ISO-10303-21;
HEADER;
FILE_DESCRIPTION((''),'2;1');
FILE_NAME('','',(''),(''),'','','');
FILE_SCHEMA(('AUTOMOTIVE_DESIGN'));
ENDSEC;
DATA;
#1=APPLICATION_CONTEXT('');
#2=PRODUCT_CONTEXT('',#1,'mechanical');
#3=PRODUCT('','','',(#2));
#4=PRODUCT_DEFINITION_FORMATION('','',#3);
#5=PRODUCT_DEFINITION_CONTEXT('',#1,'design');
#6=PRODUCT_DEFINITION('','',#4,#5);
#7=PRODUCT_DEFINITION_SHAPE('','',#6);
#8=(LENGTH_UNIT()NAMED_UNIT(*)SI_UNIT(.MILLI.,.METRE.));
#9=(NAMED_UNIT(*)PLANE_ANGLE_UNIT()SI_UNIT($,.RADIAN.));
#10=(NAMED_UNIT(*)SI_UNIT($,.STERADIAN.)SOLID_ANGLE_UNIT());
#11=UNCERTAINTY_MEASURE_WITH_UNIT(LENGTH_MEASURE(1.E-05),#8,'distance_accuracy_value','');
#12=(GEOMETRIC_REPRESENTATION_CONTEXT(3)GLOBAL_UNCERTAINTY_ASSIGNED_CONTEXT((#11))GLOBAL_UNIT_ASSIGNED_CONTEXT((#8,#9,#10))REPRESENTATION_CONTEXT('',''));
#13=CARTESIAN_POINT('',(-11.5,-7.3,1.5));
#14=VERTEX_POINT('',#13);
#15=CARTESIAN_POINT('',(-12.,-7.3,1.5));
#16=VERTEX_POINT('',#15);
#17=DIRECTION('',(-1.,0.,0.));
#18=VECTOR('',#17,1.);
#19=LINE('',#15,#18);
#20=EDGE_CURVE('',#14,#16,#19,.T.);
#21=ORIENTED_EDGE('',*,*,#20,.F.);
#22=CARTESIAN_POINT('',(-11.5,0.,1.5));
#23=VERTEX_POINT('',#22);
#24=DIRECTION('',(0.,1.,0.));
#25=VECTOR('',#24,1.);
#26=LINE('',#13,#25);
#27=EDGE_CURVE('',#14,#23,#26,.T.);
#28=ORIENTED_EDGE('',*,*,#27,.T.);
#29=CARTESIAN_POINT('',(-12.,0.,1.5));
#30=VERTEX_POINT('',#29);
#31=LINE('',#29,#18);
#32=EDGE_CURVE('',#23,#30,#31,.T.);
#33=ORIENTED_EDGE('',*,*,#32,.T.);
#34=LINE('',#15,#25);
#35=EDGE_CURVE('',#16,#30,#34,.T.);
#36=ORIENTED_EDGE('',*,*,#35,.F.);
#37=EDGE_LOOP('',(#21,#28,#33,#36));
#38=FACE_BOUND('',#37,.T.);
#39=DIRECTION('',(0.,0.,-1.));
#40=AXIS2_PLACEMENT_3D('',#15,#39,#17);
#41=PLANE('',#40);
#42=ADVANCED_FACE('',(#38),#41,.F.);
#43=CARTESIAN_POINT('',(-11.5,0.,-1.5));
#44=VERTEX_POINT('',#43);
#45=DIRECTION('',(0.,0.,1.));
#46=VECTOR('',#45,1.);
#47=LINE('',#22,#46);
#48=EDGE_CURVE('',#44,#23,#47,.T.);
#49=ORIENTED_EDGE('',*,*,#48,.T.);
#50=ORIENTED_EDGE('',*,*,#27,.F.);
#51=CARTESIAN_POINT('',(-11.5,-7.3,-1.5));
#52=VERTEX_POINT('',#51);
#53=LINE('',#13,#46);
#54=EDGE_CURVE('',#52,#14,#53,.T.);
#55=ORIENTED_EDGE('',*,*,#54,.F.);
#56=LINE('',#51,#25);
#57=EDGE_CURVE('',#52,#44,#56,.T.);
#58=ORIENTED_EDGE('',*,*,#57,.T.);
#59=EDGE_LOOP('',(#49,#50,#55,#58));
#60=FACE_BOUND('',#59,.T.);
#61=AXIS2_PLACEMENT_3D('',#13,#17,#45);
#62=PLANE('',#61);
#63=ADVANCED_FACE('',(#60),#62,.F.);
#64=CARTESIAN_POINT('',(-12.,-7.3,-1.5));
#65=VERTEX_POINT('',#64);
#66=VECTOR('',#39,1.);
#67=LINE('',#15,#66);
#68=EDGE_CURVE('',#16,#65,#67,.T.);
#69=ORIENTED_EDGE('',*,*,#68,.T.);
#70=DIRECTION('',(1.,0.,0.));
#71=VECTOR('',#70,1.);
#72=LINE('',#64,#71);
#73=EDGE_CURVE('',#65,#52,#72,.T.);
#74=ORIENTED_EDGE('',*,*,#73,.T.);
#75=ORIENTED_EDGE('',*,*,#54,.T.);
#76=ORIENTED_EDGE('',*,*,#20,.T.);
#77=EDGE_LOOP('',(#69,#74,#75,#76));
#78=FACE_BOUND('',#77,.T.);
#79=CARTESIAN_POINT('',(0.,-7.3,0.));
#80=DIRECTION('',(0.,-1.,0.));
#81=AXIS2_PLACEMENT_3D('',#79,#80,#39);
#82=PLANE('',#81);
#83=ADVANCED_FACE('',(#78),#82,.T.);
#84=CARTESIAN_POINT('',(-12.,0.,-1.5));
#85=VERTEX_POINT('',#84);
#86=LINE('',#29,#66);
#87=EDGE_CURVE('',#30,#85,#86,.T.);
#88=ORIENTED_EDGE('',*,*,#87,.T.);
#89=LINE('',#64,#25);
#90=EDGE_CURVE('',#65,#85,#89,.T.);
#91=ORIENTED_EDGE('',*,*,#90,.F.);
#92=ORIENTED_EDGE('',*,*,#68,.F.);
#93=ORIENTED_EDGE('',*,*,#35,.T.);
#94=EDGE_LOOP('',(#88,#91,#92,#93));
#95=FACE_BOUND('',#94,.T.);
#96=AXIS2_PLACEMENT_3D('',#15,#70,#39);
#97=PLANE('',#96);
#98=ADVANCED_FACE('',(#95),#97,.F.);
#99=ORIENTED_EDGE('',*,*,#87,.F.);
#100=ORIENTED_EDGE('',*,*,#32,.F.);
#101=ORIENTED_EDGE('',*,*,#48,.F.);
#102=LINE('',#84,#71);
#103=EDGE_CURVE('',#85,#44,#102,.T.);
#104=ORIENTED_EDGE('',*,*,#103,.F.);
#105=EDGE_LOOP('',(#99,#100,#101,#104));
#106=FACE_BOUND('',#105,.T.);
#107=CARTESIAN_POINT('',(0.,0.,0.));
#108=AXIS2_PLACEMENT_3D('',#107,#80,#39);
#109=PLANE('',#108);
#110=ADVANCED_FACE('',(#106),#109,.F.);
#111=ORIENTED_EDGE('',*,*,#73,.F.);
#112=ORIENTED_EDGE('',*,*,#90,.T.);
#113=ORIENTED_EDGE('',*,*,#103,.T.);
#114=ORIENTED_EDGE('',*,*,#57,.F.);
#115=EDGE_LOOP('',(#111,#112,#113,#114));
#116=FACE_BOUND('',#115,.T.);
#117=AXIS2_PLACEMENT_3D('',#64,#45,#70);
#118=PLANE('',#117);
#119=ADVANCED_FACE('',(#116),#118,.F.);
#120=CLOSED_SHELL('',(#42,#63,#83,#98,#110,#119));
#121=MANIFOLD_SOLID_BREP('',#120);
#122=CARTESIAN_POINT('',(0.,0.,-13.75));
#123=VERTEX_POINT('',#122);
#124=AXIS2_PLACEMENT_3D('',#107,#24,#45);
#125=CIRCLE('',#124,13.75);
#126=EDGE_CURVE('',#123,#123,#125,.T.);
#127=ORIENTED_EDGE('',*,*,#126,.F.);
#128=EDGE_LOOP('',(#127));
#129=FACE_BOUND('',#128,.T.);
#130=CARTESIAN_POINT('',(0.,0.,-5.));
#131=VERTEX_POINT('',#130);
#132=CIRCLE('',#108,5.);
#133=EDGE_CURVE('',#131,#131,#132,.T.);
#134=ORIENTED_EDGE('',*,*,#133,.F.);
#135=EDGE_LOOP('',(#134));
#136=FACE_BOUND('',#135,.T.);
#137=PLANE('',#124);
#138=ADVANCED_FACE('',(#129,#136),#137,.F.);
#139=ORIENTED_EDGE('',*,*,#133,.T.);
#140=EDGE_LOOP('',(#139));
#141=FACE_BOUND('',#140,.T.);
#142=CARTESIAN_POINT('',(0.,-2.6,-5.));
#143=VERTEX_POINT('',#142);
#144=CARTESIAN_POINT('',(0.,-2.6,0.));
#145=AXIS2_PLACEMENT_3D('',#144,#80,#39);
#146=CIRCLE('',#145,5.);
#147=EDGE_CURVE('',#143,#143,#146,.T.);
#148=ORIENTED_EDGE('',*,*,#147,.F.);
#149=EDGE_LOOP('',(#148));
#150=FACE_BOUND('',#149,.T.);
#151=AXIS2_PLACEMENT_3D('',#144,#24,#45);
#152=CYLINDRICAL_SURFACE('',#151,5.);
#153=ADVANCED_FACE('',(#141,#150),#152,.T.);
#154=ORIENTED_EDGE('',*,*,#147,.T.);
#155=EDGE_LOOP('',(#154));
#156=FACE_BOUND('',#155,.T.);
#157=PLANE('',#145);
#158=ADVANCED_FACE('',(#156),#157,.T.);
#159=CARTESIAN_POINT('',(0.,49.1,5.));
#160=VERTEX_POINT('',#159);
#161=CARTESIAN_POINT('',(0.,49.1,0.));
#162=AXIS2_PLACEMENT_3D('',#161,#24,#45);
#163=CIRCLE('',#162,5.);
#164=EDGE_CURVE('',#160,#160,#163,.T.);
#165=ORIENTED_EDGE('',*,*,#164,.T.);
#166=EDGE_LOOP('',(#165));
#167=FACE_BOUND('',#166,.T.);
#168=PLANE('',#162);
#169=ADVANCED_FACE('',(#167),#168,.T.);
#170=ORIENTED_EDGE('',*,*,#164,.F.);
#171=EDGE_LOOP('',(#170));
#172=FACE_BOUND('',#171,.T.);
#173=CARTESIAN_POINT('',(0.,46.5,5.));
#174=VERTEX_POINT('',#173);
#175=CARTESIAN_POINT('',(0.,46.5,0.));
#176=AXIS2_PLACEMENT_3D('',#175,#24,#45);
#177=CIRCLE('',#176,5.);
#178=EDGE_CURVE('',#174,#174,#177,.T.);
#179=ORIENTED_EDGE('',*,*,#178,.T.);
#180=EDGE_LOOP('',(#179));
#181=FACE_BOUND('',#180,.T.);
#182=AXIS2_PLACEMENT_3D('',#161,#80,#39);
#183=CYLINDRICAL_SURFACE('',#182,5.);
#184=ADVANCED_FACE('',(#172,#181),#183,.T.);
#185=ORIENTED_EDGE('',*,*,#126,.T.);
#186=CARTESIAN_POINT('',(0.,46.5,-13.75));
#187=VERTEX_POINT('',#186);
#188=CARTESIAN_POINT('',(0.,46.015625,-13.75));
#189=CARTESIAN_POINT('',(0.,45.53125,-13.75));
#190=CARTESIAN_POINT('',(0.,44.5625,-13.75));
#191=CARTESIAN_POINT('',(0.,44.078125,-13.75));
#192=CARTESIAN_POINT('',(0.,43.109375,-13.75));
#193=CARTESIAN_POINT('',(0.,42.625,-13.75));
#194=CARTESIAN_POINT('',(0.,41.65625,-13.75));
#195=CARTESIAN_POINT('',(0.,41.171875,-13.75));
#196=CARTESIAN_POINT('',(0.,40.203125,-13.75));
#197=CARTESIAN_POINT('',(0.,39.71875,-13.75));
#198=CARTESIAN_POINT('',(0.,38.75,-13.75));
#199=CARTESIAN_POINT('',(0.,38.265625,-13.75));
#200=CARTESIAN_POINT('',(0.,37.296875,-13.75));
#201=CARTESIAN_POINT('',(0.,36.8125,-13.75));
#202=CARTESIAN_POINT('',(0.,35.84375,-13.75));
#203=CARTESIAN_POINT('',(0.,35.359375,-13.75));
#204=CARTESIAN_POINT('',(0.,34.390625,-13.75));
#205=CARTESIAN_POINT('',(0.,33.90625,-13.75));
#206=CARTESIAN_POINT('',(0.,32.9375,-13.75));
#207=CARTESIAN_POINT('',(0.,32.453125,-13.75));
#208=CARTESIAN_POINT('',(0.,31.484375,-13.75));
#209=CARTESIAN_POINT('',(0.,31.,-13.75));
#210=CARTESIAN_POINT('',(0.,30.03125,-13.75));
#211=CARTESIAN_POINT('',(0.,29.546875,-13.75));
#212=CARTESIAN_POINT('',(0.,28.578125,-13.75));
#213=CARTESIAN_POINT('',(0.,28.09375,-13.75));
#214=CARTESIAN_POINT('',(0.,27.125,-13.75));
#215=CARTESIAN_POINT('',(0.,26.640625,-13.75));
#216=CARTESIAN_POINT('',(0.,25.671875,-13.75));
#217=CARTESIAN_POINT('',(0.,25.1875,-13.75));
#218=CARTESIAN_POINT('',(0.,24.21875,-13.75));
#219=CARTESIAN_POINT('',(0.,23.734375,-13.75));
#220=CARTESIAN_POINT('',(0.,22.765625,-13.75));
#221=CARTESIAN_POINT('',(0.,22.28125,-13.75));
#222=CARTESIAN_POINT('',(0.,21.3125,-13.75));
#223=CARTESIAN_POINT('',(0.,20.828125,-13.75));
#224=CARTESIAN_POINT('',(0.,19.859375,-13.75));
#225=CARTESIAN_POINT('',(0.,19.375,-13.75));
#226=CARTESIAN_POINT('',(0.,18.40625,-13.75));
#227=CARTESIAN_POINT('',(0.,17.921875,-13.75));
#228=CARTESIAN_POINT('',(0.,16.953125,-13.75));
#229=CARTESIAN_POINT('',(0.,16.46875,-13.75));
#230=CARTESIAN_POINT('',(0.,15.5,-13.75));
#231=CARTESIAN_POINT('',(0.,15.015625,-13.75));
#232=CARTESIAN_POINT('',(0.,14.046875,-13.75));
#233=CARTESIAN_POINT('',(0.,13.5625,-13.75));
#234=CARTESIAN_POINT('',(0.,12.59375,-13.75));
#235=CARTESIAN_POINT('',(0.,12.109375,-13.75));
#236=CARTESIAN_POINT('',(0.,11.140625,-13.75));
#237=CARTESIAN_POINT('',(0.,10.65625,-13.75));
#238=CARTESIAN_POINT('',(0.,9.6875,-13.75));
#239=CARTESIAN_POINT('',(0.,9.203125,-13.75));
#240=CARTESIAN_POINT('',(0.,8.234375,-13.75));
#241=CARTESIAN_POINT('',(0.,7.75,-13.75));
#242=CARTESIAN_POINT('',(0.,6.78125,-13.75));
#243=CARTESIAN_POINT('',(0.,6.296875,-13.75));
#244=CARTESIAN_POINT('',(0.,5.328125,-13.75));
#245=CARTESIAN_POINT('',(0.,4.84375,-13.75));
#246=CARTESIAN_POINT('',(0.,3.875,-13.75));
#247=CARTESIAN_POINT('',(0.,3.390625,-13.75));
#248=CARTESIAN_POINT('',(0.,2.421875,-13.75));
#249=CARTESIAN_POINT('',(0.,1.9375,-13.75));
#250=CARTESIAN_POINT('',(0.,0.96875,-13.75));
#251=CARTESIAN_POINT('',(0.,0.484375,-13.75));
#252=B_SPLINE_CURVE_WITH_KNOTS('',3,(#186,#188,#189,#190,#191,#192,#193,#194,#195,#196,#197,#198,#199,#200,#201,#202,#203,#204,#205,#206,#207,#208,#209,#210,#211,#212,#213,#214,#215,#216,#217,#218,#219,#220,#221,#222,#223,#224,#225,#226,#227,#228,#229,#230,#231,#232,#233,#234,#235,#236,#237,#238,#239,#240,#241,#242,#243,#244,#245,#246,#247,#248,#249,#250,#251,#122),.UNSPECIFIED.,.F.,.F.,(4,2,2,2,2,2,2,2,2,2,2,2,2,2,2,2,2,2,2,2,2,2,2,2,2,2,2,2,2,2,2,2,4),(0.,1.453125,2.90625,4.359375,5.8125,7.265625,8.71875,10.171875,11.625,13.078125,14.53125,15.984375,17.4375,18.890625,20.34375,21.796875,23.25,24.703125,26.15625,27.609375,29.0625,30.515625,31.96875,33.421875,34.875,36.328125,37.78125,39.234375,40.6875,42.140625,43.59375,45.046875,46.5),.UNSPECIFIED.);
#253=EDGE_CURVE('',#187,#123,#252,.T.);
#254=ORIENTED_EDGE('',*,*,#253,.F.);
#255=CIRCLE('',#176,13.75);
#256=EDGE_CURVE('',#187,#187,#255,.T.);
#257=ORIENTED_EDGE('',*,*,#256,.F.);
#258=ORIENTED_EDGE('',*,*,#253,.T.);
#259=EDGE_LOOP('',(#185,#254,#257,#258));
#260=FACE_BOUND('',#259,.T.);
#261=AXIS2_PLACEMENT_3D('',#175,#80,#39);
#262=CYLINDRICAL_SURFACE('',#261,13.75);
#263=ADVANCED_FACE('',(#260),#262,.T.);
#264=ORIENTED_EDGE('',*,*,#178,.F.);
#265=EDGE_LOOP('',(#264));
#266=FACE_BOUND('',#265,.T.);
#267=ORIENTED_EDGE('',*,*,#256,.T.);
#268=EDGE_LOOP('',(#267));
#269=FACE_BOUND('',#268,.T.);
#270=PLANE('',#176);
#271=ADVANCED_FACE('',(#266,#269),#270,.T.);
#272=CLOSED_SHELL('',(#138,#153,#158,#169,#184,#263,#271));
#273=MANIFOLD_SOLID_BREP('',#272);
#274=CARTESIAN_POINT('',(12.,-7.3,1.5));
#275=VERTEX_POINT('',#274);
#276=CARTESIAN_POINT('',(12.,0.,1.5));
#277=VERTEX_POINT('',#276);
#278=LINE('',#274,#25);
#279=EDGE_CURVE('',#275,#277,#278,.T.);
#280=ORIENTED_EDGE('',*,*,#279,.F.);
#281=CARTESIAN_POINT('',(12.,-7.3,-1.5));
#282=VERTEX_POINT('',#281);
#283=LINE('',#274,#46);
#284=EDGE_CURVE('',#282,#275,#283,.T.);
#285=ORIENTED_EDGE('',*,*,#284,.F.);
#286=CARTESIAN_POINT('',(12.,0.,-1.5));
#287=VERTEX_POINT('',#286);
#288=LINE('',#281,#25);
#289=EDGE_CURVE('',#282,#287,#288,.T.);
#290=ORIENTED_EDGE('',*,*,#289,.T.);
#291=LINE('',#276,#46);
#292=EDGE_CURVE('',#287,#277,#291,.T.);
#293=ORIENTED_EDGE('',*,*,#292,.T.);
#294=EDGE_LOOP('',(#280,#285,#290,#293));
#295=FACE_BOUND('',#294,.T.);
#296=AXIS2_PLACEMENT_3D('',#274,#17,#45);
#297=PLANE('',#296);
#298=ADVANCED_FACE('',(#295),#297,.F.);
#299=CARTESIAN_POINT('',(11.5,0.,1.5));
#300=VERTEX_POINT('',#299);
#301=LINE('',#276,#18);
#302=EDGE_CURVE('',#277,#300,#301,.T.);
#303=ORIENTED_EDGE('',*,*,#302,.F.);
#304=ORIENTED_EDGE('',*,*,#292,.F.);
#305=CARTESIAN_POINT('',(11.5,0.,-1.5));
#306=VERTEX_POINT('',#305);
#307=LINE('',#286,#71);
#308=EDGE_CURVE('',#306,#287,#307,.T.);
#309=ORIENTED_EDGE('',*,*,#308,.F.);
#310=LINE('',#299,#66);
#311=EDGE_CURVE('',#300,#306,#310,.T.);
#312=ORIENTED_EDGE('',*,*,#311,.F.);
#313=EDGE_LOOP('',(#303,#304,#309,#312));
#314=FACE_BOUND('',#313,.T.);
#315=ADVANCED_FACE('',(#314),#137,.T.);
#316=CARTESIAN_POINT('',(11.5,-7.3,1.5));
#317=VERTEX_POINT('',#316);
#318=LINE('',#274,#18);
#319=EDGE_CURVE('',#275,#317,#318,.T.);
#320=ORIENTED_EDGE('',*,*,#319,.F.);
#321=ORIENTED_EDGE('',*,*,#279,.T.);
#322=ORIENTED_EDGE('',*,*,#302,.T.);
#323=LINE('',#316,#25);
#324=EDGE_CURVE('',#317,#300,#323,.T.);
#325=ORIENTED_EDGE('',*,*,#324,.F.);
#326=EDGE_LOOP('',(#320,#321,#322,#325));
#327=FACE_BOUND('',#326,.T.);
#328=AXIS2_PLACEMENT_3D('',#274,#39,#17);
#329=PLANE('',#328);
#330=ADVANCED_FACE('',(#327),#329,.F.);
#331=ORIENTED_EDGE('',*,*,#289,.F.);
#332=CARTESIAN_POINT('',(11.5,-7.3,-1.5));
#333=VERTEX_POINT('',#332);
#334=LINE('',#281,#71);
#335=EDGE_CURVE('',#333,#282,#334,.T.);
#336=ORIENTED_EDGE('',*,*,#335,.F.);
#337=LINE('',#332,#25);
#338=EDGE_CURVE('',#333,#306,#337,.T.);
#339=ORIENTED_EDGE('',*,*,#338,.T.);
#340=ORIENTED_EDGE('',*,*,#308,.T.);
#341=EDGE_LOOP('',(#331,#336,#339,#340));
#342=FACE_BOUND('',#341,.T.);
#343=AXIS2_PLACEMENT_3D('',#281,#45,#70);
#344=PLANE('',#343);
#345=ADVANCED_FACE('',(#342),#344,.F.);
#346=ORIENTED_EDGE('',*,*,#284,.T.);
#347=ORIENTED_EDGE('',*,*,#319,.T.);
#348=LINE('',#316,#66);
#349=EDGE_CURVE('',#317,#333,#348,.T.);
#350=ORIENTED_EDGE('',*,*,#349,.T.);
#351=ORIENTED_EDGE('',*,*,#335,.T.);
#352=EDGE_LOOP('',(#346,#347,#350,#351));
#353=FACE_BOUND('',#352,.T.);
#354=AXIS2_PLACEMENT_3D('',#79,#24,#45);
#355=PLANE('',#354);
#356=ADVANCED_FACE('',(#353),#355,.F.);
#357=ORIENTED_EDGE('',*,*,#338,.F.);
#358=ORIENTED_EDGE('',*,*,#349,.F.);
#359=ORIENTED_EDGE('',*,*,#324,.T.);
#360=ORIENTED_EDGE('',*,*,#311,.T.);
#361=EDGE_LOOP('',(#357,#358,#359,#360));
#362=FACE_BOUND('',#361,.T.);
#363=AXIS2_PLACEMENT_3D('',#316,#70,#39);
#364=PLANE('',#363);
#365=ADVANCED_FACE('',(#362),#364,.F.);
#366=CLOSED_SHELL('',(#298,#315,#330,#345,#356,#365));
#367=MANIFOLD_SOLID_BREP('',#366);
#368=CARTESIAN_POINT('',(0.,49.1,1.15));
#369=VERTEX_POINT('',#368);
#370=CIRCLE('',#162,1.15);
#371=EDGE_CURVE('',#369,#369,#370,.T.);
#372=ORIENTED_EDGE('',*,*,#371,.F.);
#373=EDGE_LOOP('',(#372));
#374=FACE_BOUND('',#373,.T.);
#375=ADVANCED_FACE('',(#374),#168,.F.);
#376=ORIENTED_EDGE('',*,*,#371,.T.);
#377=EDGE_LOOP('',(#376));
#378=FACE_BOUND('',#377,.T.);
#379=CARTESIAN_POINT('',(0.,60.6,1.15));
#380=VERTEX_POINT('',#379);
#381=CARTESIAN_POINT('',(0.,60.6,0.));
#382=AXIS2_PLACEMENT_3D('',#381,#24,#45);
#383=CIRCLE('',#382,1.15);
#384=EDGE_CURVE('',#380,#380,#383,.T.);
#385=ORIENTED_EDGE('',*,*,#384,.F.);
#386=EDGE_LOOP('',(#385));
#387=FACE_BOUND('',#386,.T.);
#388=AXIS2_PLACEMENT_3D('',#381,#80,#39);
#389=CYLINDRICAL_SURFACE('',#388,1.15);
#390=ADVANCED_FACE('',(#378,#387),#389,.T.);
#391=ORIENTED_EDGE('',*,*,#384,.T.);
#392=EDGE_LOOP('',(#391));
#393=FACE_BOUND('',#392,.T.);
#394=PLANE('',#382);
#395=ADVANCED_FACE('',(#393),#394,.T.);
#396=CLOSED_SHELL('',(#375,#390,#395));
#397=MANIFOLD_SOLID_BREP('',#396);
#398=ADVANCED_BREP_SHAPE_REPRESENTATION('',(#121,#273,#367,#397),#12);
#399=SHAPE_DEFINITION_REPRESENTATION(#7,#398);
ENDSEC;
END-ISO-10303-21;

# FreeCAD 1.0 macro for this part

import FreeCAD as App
import Part
import Sketcher


def add_polygon(sketch, points):
    """Adds a closed chain of lines whose ends are joined by coincident constraints."""
    first, n = sketch.GeometryCount, len(points)
    for a, b in zip(points, points[1:] + points[:1]):
        sketch.addGeometry(Part.LineSegment(App.Vector(*a, 0), App.Vector(*b, 0)), False)
    for i in range(n):
        sketch.addConstraint(Sketcher.Constraint("Coincident", first + i, 2, first + (i + 1) % n, 1))

doc = App.newDocument("Part")
body = doc.addObject("PartDesign::Body", "Body")

# Sketch on XZ plane
sketch1 = body.newObject("Sketcher::SketchObject", "Sketch")
sketch1.AttachmentSupport = (doc.getObject("XZ_Plane"), [""])
sketch1.MapMode = "FlatFace"
sketch1.addGeometry(Part.Circle(App.Vector(0, 0, 0), App.Vector(0, 0, 1), 14), False)
sketch1.addConstraint([
    Sketcher.Constraint("Coincident", 0, 3, -1, 1),
    Sketcher.Constraint("Diameter", 0, 27.5),
])
pad1 = body.newObject("PartDesign::Pad", "Pad")
pad1.Profile = sketch1
pad1.Length = 46.5
pad1.Reversed = True

# Sketch on XZ plane
sketch2 = body.newObject("Sketcher::SketchObject", "Sketch001")
sketch2.AttachmentSupport = (doc.getObject("XZ_Plane"), [""])
sketch2.MapMode = "FlatFace"
sketch2.addGeometry(Part.Circle(App.Vector(0, 0, 0), App.Vector(0, 0, 1), 5), False)
sketch2.addConstraint([
    Sketcher.Constraint("Coincident", 0, 3, -1, 1),
    Sketcher.Constraint("Diameter", 0, 10.0),
])
pad2 = body.newObject("PartDesign::Pad", "Pad001")
pad2.Profile = sketch2
pad2.Length = 2.6

# Sketch on XZ plane
sketch3 = body.newObject("Sketcher::SketchObject", "Sketch002")
sketch3.AttachmentSupport = (doc.getObject("XZ_Plane"), [""])
sketch3.MapMode = "FlatFace"
sketch3.AttachmentOffset = App.Placement(App.Vector(0, 0, -49.1), App.Rotation())
sketch3.addGeometry(Part.Circle(App.Vector(0, 0, 0), App.Vector(0, 0, 1), 5), False)
sketch3.addConstraint([
    Sketcher.Constraint("Coincident", 0, 3, -1, 1),
    Sketcher.Constraint("Diameter", 0, 10.0),
])
pad3 = body.newObject("PartDesign::Pad", "Pad002")
pad3.Profile = sketch3
pad3.Length = 2.6
body2 = doc.addObject("PartDesign::Body", "Body001")

# Sketch on XZ plane
sketch4 = body2.newObject("Sketcher::SketchObject", "Sketch003")
sketch4.AttachmentSupport = (doc.getObject("XZ_Plane001"), [""])
sketch4.MapMode = "FlatFace"
add_polygon(sketch4, [(-12, 1.5), (-12, -1.5), (-11.5, -1.5), (-11.5, 1.5)])  # lines 0-3
sketch4.addConstraint([
    Sketcher.Constraint("Vertical", 0),
    Sketcher.Constraint("Horizontal", 1),
    Sketcher.Constraint("Vertical", 2),
    Sketcher.Constraint("Horizontal", 3),
    Sketcher.Constraint("DistanceY", 0, 2, 0, 1, 3.0),
    Sketcher.Constraint("DistanceX", 1, 1, 1, 2, 0.5),
    Sketcher.Constraint("DistanceX", 0, 2, -1, 1, 12.0),
    Sketcher.Constraint("DistanceY", 0, 2, -1, 1, 1.5),
])
pad4 = body2.newObject("PartDesign::Pad", "Pad003")
pad4.Profile = sketch4
pad4.Length = 7.3
body3 = doc.addObject("PartDesign::Body", "Body002")

# Sketch on XZ plane
sketch5 = body3.newObject("Sketcher::SketchObject", "Sketch004")
sketch5.AttachmentSupport = (doc.getObject("XZ_Plane002"), [""])
sketch5.MapMode = "FlatFace"
add_polygon(sketch5, [(11.5, 1.5), (11.5, -1.5), (12, -1.5), (12, 1.5)])  # lines 0-3
sketch5.addConstraint([
    Sketcher.Constraint("Vertical", 0),
    Sketcher.Constraint("Horizontal", 1),
    Sketcher.Constraint("Vertical", 2),
    Sketcher.Constraint("Horizontal", 3),
    Sketcher.Constraint("DistanceY", 0, 2, 0, 1, 3.0),
    Sketcher.Constraint("DistanceX", 1, 1, 1, 2, 0.5),
    Sketcher.Constraint("DistanceX", -1, 1, 1, 2, 12.0),
    Sketcher.Constraint("DistanceY", 0, 2, -1, 1, 1.5),
])
pad5 = body3.newObject("PartDesign::Pad", "Pad004")
pad5.Profile = sketch5
pad5.Length = 7.3
body4 = doc.addObject("PartDesign::Body", "Body003")

# Sketch on XZ plane
sketch6 = body4.newObject("Sketcher::SketchObject", "Sketch005")
sketch6.AttachmentSupport = (doc.getObject("XZ_Plane003"), [""])
sketch6.MapMode = "FlatFace"
sketch6.AttachmentOffset = App.Placement(App.Vector(0, 0, -49.1), App.Rotation())
sketch6.addGeometry(Part.Circle(App.Vector(0, 0, 0), App.Vector(0, 0, 1), 1.1), False)
sketch6.addConstraint([
    Sketcher.Constraint("Coincident", 0, 3, -1, 1),
    Sketcher.Constraint("Diameter", 0, 2.3),
])
pad6 = body4.newObject("PartDesign::Pad", "Pad005")
pad6.Profile = sketch6
pad6.Length = 11.5
pad6.Reversed = True

doc.recompute()
